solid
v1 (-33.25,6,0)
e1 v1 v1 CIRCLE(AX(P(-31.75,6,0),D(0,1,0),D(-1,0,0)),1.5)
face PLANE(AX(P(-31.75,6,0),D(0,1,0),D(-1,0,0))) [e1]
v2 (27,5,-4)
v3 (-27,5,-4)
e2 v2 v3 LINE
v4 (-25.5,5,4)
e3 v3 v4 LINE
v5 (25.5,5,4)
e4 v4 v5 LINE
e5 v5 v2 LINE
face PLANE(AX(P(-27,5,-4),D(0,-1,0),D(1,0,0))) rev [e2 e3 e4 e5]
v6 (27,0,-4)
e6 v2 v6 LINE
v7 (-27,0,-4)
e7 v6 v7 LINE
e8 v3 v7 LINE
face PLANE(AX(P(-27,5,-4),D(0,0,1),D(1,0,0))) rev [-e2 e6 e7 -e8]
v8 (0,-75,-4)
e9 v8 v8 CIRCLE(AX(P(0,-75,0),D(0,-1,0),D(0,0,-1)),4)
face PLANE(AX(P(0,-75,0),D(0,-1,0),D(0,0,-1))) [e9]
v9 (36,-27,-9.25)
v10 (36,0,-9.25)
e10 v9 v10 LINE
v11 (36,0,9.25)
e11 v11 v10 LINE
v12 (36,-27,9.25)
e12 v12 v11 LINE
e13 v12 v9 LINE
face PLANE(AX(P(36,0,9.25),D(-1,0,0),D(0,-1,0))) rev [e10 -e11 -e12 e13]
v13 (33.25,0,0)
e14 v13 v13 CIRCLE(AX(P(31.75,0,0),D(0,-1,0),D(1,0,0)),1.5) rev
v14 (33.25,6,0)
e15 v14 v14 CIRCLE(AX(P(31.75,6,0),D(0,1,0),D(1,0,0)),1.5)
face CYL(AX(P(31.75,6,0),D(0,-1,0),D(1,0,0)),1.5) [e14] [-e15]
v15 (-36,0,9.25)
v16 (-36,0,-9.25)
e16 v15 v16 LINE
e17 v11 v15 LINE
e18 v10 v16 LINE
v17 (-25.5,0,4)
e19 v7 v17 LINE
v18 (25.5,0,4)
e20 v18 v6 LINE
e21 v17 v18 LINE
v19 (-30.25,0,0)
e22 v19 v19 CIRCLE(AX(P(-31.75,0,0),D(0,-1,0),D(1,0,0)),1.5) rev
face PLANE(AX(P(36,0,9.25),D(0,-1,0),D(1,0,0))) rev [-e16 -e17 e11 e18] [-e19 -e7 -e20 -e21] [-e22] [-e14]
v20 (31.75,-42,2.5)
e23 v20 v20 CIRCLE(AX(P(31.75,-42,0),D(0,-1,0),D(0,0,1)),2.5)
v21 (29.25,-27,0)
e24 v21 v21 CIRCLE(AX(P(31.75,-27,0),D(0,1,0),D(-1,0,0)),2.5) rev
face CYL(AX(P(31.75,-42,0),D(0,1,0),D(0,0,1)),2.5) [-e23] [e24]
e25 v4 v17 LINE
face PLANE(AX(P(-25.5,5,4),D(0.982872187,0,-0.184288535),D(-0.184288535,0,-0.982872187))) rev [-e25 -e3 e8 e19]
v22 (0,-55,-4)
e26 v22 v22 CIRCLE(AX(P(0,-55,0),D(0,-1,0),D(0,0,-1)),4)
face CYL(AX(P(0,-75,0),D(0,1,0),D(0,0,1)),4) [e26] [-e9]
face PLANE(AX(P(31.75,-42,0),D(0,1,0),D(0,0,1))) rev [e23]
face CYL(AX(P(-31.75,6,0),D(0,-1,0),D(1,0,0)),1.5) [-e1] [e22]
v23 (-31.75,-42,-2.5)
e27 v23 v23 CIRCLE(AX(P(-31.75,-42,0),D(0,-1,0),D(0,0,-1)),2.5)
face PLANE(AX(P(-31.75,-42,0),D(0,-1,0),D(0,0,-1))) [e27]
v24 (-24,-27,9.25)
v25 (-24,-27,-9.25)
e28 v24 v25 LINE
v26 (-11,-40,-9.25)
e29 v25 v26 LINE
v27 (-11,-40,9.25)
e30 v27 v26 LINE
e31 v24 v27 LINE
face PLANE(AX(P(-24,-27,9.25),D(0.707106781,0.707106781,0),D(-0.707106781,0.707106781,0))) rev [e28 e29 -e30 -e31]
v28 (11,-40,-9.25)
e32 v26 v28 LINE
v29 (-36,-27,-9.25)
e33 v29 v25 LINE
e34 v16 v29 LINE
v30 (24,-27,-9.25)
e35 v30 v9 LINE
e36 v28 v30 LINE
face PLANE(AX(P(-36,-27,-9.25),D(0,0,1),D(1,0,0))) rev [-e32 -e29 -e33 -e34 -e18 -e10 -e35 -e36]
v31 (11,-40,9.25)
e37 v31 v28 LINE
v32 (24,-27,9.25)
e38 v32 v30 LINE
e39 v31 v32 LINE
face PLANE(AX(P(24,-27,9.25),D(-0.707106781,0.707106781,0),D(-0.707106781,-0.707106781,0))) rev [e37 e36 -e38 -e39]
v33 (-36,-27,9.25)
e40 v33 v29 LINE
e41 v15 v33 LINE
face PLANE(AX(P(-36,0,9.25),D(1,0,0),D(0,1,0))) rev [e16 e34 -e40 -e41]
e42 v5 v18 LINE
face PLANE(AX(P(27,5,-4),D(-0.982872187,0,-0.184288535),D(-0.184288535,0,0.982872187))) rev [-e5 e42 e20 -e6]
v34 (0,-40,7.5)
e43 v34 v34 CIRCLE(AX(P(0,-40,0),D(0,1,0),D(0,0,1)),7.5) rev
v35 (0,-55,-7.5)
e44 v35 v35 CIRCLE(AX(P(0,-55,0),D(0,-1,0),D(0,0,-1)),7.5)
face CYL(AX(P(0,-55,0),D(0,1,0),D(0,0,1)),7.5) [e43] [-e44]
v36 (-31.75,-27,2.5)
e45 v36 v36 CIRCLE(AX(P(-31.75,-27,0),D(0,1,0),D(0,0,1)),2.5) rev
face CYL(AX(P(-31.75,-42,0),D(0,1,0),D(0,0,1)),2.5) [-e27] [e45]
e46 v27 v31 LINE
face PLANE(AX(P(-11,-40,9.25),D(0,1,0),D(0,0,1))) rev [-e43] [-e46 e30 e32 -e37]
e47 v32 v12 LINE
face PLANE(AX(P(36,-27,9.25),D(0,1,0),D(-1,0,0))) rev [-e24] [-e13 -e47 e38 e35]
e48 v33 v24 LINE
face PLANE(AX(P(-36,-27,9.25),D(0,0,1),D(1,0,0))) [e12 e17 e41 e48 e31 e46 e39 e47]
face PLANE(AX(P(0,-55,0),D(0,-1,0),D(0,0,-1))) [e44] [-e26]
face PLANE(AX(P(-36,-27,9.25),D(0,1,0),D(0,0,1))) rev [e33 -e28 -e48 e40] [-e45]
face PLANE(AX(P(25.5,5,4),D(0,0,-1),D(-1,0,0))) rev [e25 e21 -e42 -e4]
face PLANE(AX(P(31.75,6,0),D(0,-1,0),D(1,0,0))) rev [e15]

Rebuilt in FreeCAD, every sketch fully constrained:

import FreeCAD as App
import Part
import Sketcher

V = App.Vector
Q = App.Units.Quantity

doc = App.newDocument("Part")
body = doc.addObject("PartDesign::Body", "Body")

sketch1 = body.newObject("Sketcher::SketchObject", "Sketch")
sketch1.AttachmentSupport = (doc.getObject("XY_Plane"), [""])
sketch1.MapMode = "FlatFace"
sketch1.addGeometry([
    Part.LineSegment(V(36, 0, 0), V(-36, 0, 0)),
    Part.LineSegment(V(-36, 0, 0), V(-36, -27, 0)),
    Part.LineSegment(V(-36, -27, 0), V(-24, -27, 0)),
    Part.LineSegment(V(-24, -27, 0), V(-11, -40, 0)),
    Part.LineSegment(V(-11, -40, 0), V(11, -40, 0)),
    Part.LineSegment(V(11, -40, 0), V(24, -27, 0)),
    Part.LineSegment(V(24, -27, 0), V(36, -27, 0)),
    Part.LineSegment(V(36, -27, 0), V(36, 0, 0)),
], False)
sketch1.addConstraint([
    Sketcher.Constraint("Coincident", 0, 2, 1, 1),
    Sketcher.Constraint("Coincident", 1, 2, 2, 1),
    Sketcher.Constraint("Coincident", 2, 2, 3, 1),
    Sketcher.Constraint("Coincident", 3, 2, 4, 1),
    Sketcher.Constraint("Coincident", 4, 2, 5, 1),
    Sketcher.Constraint("Coincident", 5, 2, 6, 1),
    Sketcher.Constraint("Coincident", 6, 2, 7, 1),
    Sketcher.Constraint("Coincident", 7, 2, 0, 1),
    Sketcher.Constraint("Horizontal", 0),
    Sketcher.Constraint("Vertical", 1),
    Sketcher.Constraint("Horizontal", 2),
    Sketcher.Constraint("Horizontal", 4),
    Sketcher.Constraint("Horizontal", 6),
    Sketcher.Constraint("Vertical", 7),
    Sketcher.Constraint("Symmetric", 0, 2, 7, 2, -1, 1),
    Sketcher.Constraint("Symmetric", 2, 2, 5, 2, -2),
    Sketcher.Constraint("Perpendicular", 3, 5),
    Sketcher.Constraint("Equal", 3, 5),
    Sketcher.Constraint("DistanceX", 0, 2, 0, 1, Q("72 mm")),
    Sketcher.Constraint("DistanceX", 2, 1, 2, 2, Q("12 mm")),
    Sketcher.Constraint("DistanceX", 4, 1, 4, 2, Q("22 mm")),
    Sketcher.Constraint("DistanceY", 1, 2, 1, 1, Q("27 mm")),
])
pad1 = body.newObject("PartDesign::Pad", "Pad")
pad1.Profile = sketch1
pad1.Length = 18.5
pad1.Midplane = True

sketch2 = body.newObject("Sketcher::SketchObject", "Sketch001")
sketch2.AttachmentSupport = (doc.getObject("XZ_Plane"), [""])
sketch2.MapMode = "FlatFace"
sketch2.AttachmentOffset = App.Placement(V(0, 0, 40), App.Rotation())
sketch2.addGeometry(Part.Circle(V(0, 0, 0), V(0, 0, 1), 7.5), False)
sketch2.addConstraint([
    Sketcher.Constraint("Coincident", 0, 3, -1, 1),
    Sketcher.Constraint("Diameter", 0, Q("15 mm")),
])
pad2 = body.newObject("PartDesign::Pad", "Pad001")
pad2.Profile = sketch2
pad2.Length = 15

sketch3 = body.newObject("Sketcher::SketchObject", "Sketch002")
sketch3.AttachmentSupport = (doc.getObject("XZ_Plane"), [""])
sketch3.MapMode = "FlatFace"
sketch3.AttachmentOffset = App.Placement(V(0, 0, 55), App.Rotation())
sketch3.addGeometry(Part.Circle(V(0, 0, 0), V(0, 0, 1), 4), False)
sketch3.addConstraint([
    Sketcher.Constraint("Coincident", 0, 3, -1, 1),
    Sketcher.Constraint("Diameter", 0, Q("8 mm")),
])
pad3 = body.newObject("PartDesign::Pad", "Pad002")
pad3.Profile = sketch3
pad3.Length = 20

sketch4 = body.newObject("Sketcher::SketchObject", "Sketch003")
sketch4.AttachmentSupport = (doc.getObject("XZ_Plane"), [""])
sketch4.MapMode = "FlatFace"
sketch4.AttachmentOffset = App.Placement(V(0, 0, 27), App.Rotation())
sketch4.addGeometry([
    Part.Circle(V(-31.75, 0, 0), V(0, 0, 1), 2.5),
    Part.Circle(V(31.75, 0, 0), V(0, 0, 1), 2.5),
], False)
sketch4.addConstraint([
    Sketcher.Constraint("Equal", 0, 1),
    Sketcher.Constraint("Symmetric", 0, 3, 1, 3, -1, 1),
    Sketcher.Constraint("PointOnObject", 0, 3, -1),
    Sketcher.Constraint("Diameter", 0, Q("5 mm")),
    Sketcher.Constraint("DistanceX", 0, 3, 1, 3, Q("63.5 mm")),
])
pad4 = body.newObject("PartDesign::Pad", "Pad003")
pad4.Profile = sketch4
pad4.Length = 15

sketch5 = body.newObject("Sketcher::SketchObject", "Sketch004")
sketch5.AttachmentSupport = (doc.getObject("XZ_Plane"), [""])
sketch5.MapMode = "FlatFace"
sketch5.addGeometry([
    Part.LineSegment(V(27, -4, 0), V(-27, -4, 0)),
    Part.LineSegment(V(-27, -4, 0), V(-25.5, 4, 0)),
    Part.LineSegment(V(-25.5, 4, 0), V(25.5, 4, 0)),
    Part.LineSegment(V(25.5, 4, 0), V(27, -4, 0)),
], False)
sketch5.addConstraint([
    Sketcher.Constraint("Coincident", 0, 2, 1, 1),
    Sketcher.Constraint("Coincident", 1, 2, 2, 1),
    Sketcher.Constraint("Coincident", 2, 2, 3, 1),
    Sketcher.Constraint("Coincident", 3, 2, 0, 1),
    Sketcher.Constraint("Horizontal", 0),
    Sketcher.Constraint("Horizontal", 2),
    Sketcher.Constraint("Equal", 1, 3),
    Sketcher.Constraint("DistanceX", 0, 2, 0, 1, Q("54 mm")),
    Sketcher.Constraint("DistanceX", 2, 1, 2, 2, Q("51 mm")),
    Sketcher.Constraint("DistanceX", 0, 2, -1, 1, Q("27 mm")),
    Sketcher.Constraint("DistanceY", 0, 2, -1, 1, Q("4 mm")),
    Sketcher.Constraint("DistanceY", -1, 1, 1, 2, Q("4 mm")),
])
pad5 = body.newObject("PartDesign::Pad", "Pad004")
pad5.Profile = sketch5
pad5.Length = 5
pad5.Reversed = True

sketch6 = body.newObject("Sketcher::SketchObject", "Sketch005")
sketch6.AttachmentSupport = (doc.getObject("XZ_Plane"), [""])
sketch6.MapMode = "FlatFace"
sketch6.addGeometry([
    Part.Circle(V(-31.75, 0, 0), V(0, 0, 1), 1.5),
    Part.Circle(V(31.75, 0, 0), V(0, 0, 1), 1.5),
], False)
sketch6.addConstraint([
    Sketcher.Constraint("Equal", 0, 1),
    Sketcher.Constraint("Symmetric", 0, 3, 1, 3, -1, 1),
    Sketcher.Constraint("PointOnObject", 0, 3, -1),
    Sketcher.Constraint("Diameter", 0, Q("3 mm")),
    Sketcher.Constraint("DistanceX", 0, 3, 1, 3, Q("63.5 mm")),
])
pad6 = body.newObject("PartDesign::Pad", "Pad005")
pad6.Profile = sketch6
pad6.Length = 6
pad6.Reversed = True

doc.recompute()
